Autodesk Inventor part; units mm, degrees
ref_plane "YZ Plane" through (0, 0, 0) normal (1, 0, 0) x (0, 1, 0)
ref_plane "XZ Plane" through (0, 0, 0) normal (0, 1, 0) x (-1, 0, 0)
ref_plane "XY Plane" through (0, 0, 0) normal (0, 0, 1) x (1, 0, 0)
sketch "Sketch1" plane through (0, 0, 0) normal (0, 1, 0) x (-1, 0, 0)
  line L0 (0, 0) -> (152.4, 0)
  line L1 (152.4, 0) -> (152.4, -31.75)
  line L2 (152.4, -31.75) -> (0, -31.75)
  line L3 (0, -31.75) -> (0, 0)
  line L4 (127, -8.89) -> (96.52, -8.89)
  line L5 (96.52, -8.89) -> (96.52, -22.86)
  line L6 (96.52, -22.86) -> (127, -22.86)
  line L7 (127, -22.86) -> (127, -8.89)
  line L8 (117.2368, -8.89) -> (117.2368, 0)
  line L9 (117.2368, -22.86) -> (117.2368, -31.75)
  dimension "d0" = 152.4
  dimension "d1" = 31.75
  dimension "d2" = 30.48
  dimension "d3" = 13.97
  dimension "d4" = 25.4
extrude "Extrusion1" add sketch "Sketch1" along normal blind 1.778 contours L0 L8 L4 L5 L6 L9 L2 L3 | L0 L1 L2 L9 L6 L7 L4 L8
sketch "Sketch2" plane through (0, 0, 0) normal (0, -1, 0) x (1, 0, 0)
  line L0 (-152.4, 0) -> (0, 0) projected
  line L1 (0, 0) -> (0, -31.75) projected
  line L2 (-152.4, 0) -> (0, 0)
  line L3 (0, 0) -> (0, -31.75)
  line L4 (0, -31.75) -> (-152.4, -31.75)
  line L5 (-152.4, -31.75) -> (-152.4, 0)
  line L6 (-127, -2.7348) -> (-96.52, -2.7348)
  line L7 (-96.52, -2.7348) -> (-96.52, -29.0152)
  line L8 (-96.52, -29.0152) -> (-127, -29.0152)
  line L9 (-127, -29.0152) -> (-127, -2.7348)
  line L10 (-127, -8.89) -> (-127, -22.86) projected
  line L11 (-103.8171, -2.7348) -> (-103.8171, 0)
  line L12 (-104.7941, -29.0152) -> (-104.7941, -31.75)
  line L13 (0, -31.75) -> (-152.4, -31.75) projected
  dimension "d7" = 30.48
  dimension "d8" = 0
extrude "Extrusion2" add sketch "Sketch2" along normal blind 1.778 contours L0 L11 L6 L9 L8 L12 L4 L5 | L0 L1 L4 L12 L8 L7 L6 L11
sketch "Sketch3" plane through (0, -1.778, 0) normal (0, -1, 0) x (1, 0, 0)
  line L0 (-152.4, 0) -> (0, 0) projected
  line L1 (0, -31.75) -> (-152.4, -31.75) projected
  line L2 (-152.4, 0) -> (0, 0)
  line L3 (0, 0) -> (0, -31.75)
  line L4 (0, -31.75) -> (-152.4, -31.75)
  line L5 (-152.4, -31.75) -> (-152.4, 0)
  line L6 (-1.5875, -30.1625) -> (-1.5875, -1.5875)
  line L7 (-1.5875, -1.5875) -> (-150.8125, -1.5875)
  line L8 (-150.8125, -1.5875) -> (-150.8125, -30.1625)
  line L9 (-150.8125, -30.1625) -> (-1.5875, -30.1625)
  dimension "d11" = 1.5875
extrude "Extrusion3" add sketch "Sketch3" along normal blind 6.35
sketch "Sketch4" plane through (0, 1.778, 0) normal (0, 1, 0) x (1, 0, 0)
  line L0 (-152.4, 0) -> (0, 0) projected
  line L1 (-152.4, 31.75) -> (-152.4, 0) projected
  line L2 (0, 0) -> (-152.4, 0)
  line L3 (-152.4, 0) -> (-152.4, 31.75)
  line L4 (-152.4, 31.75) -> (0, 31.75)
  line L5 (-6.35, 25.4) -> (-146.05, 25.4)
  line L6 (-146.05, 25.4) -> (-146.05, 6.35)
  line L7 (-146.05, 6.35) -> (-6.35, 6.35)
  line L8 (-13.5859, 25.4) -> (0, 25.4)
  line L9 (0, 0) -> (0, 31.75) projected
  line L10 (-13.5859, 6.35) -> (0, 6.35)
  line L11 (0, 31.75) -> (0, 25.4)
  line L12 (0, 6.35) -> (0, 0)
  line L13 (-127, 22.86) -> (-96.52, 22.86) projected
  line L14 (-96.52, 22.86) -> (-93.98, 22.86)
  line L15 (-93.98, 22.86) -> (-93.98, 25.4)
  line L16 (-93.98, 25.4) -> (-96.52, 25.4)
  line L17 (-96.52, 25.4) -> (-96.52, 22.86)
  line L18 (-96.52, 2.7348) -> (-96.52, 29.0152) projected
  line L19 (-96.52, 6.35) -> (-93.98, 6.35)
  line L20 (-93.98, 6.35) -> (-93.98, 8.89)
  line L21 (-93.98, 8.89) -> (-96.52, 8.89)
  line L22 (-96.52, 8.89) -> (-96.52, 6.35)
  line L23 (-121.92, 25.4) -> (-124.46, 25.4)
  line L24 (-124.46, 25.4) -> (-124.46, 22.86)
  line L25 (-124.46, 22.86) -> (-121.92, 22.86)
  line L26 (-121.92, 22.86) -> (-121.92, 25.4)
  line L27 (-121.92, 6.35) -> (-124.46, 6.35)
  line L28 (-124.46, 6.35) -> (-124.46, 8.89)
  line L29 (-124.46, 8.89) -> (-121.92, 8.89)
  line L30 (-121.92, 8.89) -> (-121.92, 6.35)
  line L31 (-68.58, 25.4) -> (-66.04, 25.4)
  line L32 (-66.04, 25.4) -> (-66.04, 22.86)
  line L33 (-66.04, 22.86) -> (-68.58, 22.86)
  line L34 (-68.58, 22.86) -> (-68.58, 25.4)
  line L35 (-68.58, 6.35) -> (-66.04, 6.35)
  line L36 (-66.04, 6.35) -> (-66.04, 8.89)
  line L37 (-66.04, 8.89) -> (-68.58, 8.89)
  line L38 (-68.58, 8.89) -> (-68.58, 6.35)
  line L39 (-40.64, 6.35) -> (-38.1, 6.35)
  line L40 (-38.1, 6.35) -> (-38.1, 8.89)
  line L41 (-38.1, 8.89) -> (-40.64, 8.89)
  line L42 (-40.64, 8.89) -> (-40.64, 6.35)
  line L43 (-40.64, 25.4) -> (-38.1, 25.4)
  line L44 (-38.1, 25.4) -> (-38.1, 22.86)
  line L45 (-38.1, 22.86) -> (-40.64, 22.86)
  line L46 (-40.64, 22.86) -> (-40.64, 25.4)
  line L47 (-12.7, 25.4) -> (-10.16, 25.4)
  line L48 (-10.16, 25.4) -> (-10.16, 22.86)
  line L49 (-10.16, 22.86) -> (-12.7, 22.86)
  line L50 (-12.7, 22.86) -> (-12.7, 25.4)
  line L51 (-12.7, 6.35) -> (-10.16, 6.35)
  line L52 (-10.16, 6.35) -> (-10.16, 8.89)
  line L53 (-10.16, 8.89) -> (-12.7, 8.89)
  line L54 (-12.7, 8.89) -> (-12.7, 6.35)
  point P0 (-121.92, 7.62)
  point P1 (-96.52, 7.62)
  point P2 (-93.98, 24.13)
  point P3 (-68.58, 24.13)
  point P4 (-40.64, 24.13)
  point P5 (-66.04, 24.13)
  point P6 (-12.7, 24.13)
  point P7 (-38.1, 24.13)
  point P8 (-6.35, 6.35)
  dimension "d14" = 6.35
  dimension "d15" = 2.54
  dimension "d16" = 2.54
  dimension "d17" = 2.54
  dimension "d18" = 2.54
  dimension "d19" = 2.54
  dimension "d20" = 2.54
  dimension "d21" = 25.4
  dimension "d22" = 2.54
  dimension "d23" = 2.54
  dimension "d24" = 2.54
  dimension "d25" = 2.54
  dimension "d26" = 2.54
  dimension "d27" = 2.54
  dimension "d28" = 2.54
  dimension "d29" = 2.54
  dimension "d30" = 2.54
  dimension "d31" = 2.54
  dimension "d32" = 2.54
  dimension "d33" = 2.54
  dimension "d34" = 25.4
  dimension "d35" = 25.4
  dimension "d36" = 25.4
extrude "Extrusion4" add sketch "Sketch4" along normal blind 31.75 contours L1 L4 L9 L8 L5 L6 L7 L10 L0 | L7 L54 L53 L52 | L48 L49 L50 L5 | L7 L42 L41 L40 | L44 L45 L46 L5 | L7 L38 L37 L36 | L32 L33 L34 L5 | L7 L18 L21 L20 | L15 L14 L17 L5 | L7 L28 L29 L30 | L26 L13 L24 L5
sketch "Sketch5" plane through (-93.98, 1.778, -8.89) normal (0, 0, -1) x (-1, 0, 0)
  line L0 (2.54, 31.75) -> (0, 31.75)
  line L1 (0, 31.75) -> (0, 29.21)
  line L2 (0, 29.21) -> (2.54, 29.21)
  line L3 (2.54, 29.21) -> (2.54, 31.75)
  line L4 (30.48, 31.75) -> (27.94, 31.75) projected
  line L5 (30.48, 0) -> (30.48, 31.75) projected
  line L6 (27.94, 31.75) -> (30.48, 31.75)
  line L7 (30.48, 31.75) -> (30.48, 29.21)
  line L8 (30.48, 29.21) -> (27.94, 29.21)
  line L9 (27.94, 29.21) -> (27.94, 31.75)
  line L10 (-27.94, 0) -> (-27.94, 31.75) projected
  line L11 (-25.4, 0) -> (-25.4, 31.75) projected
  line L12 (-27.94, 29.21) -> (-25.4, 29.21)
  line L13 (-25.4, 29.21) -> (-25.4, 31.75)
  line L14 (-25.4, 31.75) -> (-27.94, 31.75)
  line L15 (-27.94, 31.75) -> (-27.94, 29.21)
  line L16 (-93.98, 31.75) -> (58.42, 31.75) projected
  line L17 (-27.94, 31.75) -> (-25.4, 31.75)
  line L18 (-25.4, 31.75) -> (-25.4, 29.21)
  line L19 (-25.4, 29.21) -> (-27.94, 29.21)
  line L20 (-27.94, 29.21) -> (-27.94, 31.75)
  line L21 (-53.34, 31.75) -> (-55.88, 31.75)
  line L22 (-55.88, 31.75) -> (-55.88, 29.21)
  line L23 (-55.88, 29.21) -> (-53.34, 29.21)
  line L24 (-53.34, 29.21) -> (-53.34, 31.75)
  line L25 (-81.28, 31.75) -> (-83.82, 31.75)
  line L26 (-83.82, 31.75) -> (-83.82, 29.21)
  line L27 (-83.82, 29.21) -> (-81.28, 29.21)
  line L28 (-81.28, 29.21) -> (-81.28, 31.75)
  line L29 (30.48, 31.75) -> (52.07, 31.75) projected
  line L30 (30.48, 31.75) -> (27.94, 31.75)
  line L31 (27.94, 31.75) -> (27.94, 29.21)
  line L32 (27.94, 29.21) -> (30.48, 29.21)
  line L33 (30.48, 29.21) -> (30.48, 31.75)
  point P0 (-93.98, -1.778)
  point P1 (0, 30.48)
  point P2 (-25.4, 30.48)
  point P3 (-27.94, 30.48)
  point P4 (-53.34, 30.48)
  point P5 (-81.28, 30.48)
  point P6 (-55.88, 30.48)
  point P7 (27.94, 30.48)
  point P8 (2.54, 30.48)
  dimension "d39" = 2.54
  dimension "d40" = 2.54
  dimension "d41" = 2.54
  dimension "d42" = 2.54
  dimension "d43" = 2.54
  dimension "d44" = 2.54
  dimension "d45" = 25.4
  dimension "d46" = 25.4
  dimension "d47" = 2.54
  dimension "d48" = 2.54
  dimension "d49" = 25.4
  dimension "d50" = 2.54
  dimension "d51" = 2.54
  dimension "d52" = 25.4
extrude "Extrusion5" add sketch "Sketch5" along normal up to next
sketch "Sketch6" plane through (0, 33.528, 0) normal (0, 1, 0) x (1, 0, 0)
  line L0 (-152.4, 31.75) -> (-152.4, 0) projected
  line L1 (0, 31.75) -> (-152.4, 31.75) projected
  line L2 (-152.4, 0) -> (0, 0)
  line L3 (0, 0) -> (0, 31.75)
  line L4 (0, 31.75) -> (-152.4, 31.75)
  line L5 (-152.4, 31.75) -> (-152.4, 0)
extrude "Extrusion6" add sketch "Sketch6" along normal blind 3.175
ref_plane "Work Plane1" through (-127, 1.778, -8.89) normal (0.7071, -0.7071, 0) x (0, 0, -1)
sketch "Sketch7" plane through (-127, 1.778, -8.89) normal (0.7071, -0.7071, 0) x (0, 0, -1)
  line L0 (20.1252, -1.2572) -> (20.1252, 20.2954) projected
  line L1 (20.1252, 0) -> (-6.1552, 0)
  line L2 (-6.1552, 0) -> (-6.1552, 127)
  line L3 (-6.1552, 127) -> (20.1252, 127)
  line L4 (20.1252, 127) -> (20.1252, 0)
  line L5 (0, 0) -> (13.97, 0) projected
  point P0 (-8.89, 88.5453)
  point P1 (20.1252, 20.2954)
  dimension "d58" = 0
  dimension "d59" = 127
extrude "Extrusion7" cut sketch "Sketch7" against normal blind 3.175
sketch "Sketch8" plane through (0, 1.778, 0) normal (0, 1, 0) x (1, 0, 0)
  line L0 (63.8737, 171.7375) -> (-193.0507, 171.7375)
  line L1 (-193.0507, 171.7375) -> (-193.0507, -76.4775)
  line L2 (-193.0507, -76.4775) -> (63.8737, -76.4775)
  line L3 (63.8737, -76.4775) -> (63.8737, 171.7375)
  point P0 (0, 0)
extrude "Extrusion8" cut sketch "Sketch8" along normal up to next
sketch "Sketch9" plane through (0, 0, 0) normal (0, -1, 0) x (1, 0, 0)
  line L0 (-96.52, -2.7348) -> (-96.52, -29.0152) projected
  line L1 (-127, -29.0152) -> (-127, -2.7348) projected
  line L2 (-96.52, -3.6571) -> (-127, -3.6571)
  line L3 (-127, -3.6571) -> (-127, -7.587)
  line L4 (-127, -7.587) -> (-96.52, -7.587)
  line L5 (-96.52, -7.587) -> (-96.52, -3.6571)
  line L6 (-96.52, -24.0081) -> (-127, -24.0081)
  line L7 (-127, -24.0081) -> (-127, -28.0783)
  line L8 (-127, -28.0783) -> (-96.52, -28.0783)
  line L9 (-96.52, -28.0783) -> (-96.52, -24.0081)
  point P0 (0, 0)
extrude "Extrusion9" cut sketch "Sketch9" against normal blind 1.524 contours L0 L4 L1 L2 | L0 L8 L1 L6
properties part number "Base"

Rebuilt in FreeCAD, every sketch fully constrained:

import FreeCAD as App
import Part
import Sketcher
Q = App.Units.Quantity

doc = App.newDocument("Part")
body = doc.addObject("PartDesign::Body", "Body")

sketch1 = doc.addObject("Sketcher::SketchObject", "Sketch")
body.addObject(sketch1)
sketch1.AttachmentSupport = (doc.XZ_Plane, [""])
sketch1.MapMode = "FlatFace"
sketch1.addGeometry(Part.LineSegment(App.Vector(0, 0, 0), App.Vector(0, -32, 0)), False)
sketch1.addGeometry(Part.LineSegment(App.Vector(0, -32, 0), App.Vector(-152, -32, 0)), False)
sketch1.addGeometry(Part.LineSegment(App.Vector(-152, -32, 0), App.Vector(-152, 0, 0)), False)
sketch1.addGeometry(Part.LineSegment(App.Vector(-152, 0, 0), App.Vector(0, 0, 0)), False)
sketch1.addGeometry(Part.LineSegment(App.Vector(-97, -9, 0), App.Vector(-127, -9, 0)), False)
sketch1.addGeometry(Part.LineSegment(App.Vector(-127, -9, 0), App.Vector(-127, -23, 0)), False)
sketch1.addGeometry(Part.LineSegment(App.Vector(-127, -23, 0), App.Vector(-97, -23, 0)), False)
sketch1.addGeometry(Part.LineSegment(App.Vector(-97, -23, 0), App.Vector(-97, -9, 0)), False)
sketch1.addConstraint(Sketcher.Constraint("Coincident", 0, 2, 1, 1))
sketch1.addConstraint(Sketcher.Constraint("Coincident", 1, 2, 2, 1))
sketch1.addConstraint(Sketcher.Constraint("Coincident", 2, 2, 3, 1))
sketch1.addConstraint(Sketcher.Constraint("Coincident", 3, 2, 0, 1))
sketch1.addConstraint(Sketcher.Constraint("Coincident", 4, 2, 5, 1))
sketch1.addConstraint(Sketcher.Constraint("Coincident", 5, 2, 6, 1))
sketch1.addConstraint(Sketcher.Constraint("Coincident", 6, 2, 7, 1))
sketch1.addConstraint(Sketcher.Constraint("Coincident", 7, 2, 4, 1))
sketch1.addConstraint(Sketcher.Constraint("Vertical", 0))
sketch1.addConstraint(Sketcher.Constraint("Horizontal", 1))
sketch1.addConstraint(Sketcher.Constraint("Vertical", 2))
sketch1.addConstraint(Sketcher.Constraint("Horizontal", 3))
sketch1.addConstraint(Sketcher.Constraint("Horizontal", 4))
sketch1.addConstraint(Sketcher.Constraint("Vertical", 5))
sketch1.addConstraint(Sketcher.Constraint("Horizontal", 6))
sketch1.addConstraint(Sketcher.Constraint("Vertical", 7))
sketch1.addConstraint(Sketcher.Constraint("Coincident", 3, 2, -1, 1))
sketch1.addConstraint(Sketcher.Constraint("DistanceX", 1, 2, 1, 1, Q("6 in")))
sketch1.addConstraint(Sketcher.Constraint("DistanceX", 4, 2, 4, 1, Q("1.2 in")))
sketch1.addConstraint(Sketcher.Constraint("DistanceX", 2, 2, 4, 2, Q("1 in")))
sketch1.addConstraint(Sketcher.Constraint("DistanceY", 0, 2, 0, 1, Q("1.25 in")))
sketch1.addConstraint(Sketcher.Constraint("DistanceY", 5, 2, 5, 1, Q("0.55 in")))
sketch1.addConstraint(Sketcher.Constraint("DistanceY", 5, 2, -1, 1, Q("0.9 in")))
pad1 = doc.addObject("PartDesign::Pad", "Pad")
body.addObject(pad1)
pad1.Profile = sketch1
pad1.Length = Q("0.07 in")
pad1.Reversed = True

sketch2 = doc.addObject("Sketcher::SketchObject", "Sketch001")
body.addObject(sketch2)
sketch2.AttachmentSupport = (doc.XZ_Plane, [""])
sketch2.MapMode = "FlatFace"
sketch2.addGeometry(Part.LineSegment(App.Vector(-152, 0, 0), App.Vector(-152, -32, 0)), False)
sketch2.addGeometry(Part.LineSegment(App.Vector(-152, -32, 0), App.Vector(0, -32, 0)), False)
sketch2.addGeometry(Part.LineSegment(App.Vector(0, -32, 0), App.Vector(0, 0, 0)), False)
sketch2.addGeometry(Part.LineSegment(App.Vector(0, 0, 0), App.Vector(-152, 0, 0)), False)
sketch2.addGeometry(Part.LineSegment(App.Vector(-127, -3, 0), App.Vector(-97, -3, 0)), False)
sketch2.addGeometry(Part.LineSegment(App.Vector(-97, -3, 0), App.Vector(-97, -29, 0)), False)
sketch2.addGeometry(Part.LineSegment(App.Vector(-97, -29, 0), App.Vector(-127, -29, 0)), False)
sketch2.addGeometry(Part.LineSegment(App.Vector(-127, -29, 0), App.Vector(-127, -3, 0)), False)
sketch2.addConstraint(Sketcher.Constraint("Coincident", 0, 2, 1, 1))
sketch2.addConstraint(Sketcher.Constraint("Coincident", 1, 2, 2, 1))
sketch2.addConstraint(Sketcher.Constraint("Coincident", 2, 2, 3, 1))
sketch2.addConstraint(Sketcher.Constraint("Coincident", 3, 2, 0, 1))
sketch2.addConstraint(Sketcher.Constraint("Coincident", 4, 2, 5, 1))
sketch2.addConstraint(Sketcher.Constraint("Coincident", 5, 2, 6, 1))
sketch2.addConstraint(Sketcher.Constraint("Coincident", 6, 2, 7, 1))
sketch2.addConstraint(Sketcher.Constraint("Coincident", 7, 2, 4, 1))
sketch2.addConstraint(Sketcher.Constraint("Vertical", 0))
sketch2.addConstraint(Sketcher.Constraint("Horizontal", 1))
sketch2.addConstraint(Sketcher.Constraint("Vertical", 2))
sketch2.addConstraint(Sketcher.Constraint("Horizontal", 3))
sketch2.addConstraint(Sketcher.Constraint("Horizontal", 4))
sketch2.addConstraint(Sketcher.Constraint("Vertical", 5))
sketch2.addConstraint(Sketcher.Constraint("Horizontal", 6))
sketch2.addConstraint(Sketcher.Constraint("Vertical", 7))
sketch2.addConstraint(Sketcher.Constraint("Coincident", 2, 2, -1, 1))
sketch2.addConstraint(Sketcher.Constraint("DistanceX", 4, 1, 4, 2, Q("1.2 in")))
sketch2.addConstraint(Sketcher.Constraint("DistanceX", 1, 1, 1, 2, Q("6 in")))
sketch2.addConstraint(Sketcher.Constraint("DistanceX", 6, 2, -1, 1, Q("5 in")))
sketch2.addConstraint(Sketcher.Constraint("DistanceY", 0, 2, 0, 1, Q("1.25 in")))
sketch2.addConstraint(Sketcher.Constraint("DistanceY", 5, 2, 5, 1, Q("26.2804 mm")))
sketch2.addConstraint(Sketcher.Constraint("DistanceY", 4, 2, -1, 1, Q("2.7348 mm")))
pad2 = doc.addObject("PartDesign::Pad", "Pad001")
body.addObject(pad2)
pad2.Profile = sketch2
pad2.Length = Q("0.07 in")

sketch3 = doc.addObject("Sketcher::SketchObject", "Sketch002")
body.addObject(sketch3)
sketch3.AttachmentSupport = (doc.XZ_Plane, [""])
sketch3.MapMode = "FlatFace"
sketch3.AttachmentOffset = App.Placement(App.Vector(0, 0, 0.07 * 25.4), App.Rotation())
sketch3.addGeometry(Part.LineSegment(App.Vector(0, 0, 0), App.Vector(-152, 0, 0)), False)
sketch3.addGeometry(Part.LineSegment(App.Vector(-152, 0, 0), App.Vector(-152, -32, 0)), False)
sketch3.addGeometry(Part.LineSegment(App.Vector(-152, -32, 0), App.Vector(0, -32, 0)), False)
sketch3.addGeometry(Part.LineSegment(App.Vector(0, -32, 0), App.Vector(0, 0, 0)), False)
sketch3.addGeometry(Part.LineSegment(App.Vector(-2, -2, 0), App.Vector(-2, -30, 0)), False)
sketch3.addGeometry(Part.LineSegment(App.Vector(-2, -30, 0), App.Vector(-151, -30, 0)), False)
sketch3.addGeometry(Part.LineSegment(App.Vector(-151, -30, 0), App.Vector(-151, -2, 0)), False)
sketch3.addGeometry(Part.LineSegment(App.Vector(-151, -2, 0), App.Vector(-2, -2, 0)), False)
sketch3.addConstraint(Sketcher.Constraint("Coincident", 0, 2, 1, 1))
sketch3.addConstraint(Sketcher.Constraint("Coincident", 1, 2, 2, 1))
sketch3.addConstraint(Sketcher.Constraint("Coincident", 2, 2, 3, 1))
sketch3.addConstraint(Sketcher.Constraint("Coincident", 3, 2, 0, 1))
sketch3.addConstraint(Sketcher.Constraint("Coincident", 4, 2, 5, 1))
sketch3.addConstraint(Sketcher.Constraint("Coincident", 5, 2, 6, 1))
sketch3.addConstraint(Sketcher.Constraint("Coincident", 6, 2, 7, 1))
sketch3.addConstraint(Sketcher.Constraint("Coincident", 7, 2, 4, 1))
sketch3.addConstraint(Sketcher.Constraint("Horizontal", 0))
sketch3.addConstraint(Sketcher.Constraint("Vertical", 1))
sketch3.addConstraint(Sketcher.Constraint("Horizontal", 2))
sketch3.addConstraint(Sketcher.Constraint("Vertical", 3))
sketch3.addConstraint(Sketcher.Constraint("Vertical", 4))
sketch3.addConstraint(Sketcher.Constraint("Horizontal", 5))
sketch3.addConstraint(Sketcher.Constraint("Vertical", 6))
sketch3.addConstraint(Sketcher.Constraint("Horizontal", 7))
sketch3.addConstraint(Sketcher.Constraint("Coincident", 3, 2, -1, 1))
sketch3.addConstraint(Sketcher.Constraint("DistanceX", 0, 2, 0, 1, Q("6 in")))
sketch3.addConstraint(Sketcher.Constraint("DistanceX", 4, 2, -1, 1, Q("0.0625 in")))
sketch3.addConstraint(Sketcher.Constraint("DistanceY", 6, 2, -1, 1, Q("0.0625 in")))
sketch3.addConstraint(Sketcher.Constraint("DistanceY", 2, 2, 4, 2, Q("0.0625 in")))
sketch3.addConstraint(Sketcher.Constraint("DistanceX", 1, 2, 5, 2, Q("0.0625 in")))
sketch3.addConstraint(Sketcher.Constraint("DistanceY", 1, 2, 1, 1, Q("1.25 in")))
pad3 = doc.addObject("PartDesign::Pad", "Pad002")
body.addObject(pad3)
pad3.Profile = sketch3
pad3.Length = Q("0.25 in")

sketch4 = doc.addObject("Sketcher::SketchObject", "Sketch003")
body.addObject(sketch4)
sketch4.AttachmentSupport = (doc.XZ_Plane, [""])
sketch4.MapMode = "FlatFace"
sketch4.AttachmentOffset = App.Placement(App.Vector(0, 0, -0.07 * 25.4), App.Rotation())
sketch4.addGeometry(Part.LineSegment(App.Vector(-152.4, -31.8, 0), App.Vector(-152.4, 0, 0)), False)
sketch4.addGeometry(Part.LineSegment(App.Vector(-152.4, 0, 0), App.Vector(0, 0, 0)), False)
sketch4.addGeometry(Part.LineSegment(App.Vector(0, 0, 0), App.Vector(0, -6.3, 0)), False)
sketch4.addGeometry(Part.LineSegment(App.Vector(0, -6.3, 0), App.Vector(-10.2, -6.3, 0)), False)
sketch4.addGeometry(Part.LineSegment(App.Vector(-10.2, -6.3, 0), App.Vector(-10.2, -8.9, 0)), False)
sketch4.addGeometry(Part.LineSegment(App.Vector(-10.2, -8.9, 0), App.Vector(-12.7, -8.9, 0)), False)
sketch4.addGeometry(Part.LineSegment(App.Vector(-12.7, -8.9, 0), App.Vector(-12.7, -6.3, 0)), False)
sketch4.addGeometry(Part.LineSegment(App.Vector(-12.7, -6.3, 0), App.Vector(-38.1, -6.3, 0)), False)
sketch4.addGeometry(Part.LineSegment(App.Vector(-38.1, -6.3, 0), App.Vector(-38.1, -8.9, 0)), False)
sketch4.addGeometry(Part.LineSegment(App.Vector(-38.1, -8.9, 0), App.Vector(-40.6, -8.9, 0)), False)
sketch4.addGeometry(Part.LineSegment(App.Vector(-40.6, -8.9, 0), App.Vector(-40.6, -6.3, 0)), False)
sketch4.addGeometry(Part.LineSegment(App.Vector(-40.6, -6.3, 0), App.Vector(-66, -6.3, 0)), False)
sketch4.addGeometry(Part.LineSegment(App.Vector(-66, -6.3, 0), App.Vector(-66, -8.9, 0)), False)
sketch4.addGeometry(Part.LineSegment(App.Vector(-66, -8.9, 0), App.Vector(-68.6, -8.9, 0)), False)
sketch4.addGeometry(Part.LineSegment(App.Vector(-68.6, -8.9, 0), App.Vector(-68.6, -6.3, 0)), False)
sketch4.addGeometry(Part.LineSegment(App.Vector(-68.6, -6.3, 0), App.Vector(-94, -6.3, 0)), False)
sketch4.addGeometry(Part.LineSegment(App.Vector(-94, -6.3, 0), App.Vector(-94, -8.9, 0)), False)
sketch4.addGeometry(Part.LineSegment(App.Vector(-94, -8.9, 0), App.Vector(-96.5, -8.9, 0)), False)
sketch4.addGeometry(Part.LineSegment(App.Vector(-96.5, -8.9, 0), App.Vector(-96.5, -6.3, 0)), False)
sketch4.addGeometry(Part.LineSegment(App.Vector(-96.5, -6.3, 0), App.Vector(-121.9, -6.3, 0)), False)
sketch4.addGeometry(Part.LineSegment(App.Vector(-121.9, -6.3, 0), App.Vector(-121.9, -8.9, 0)), False)
sketch4.addGeometry(Part.LineSegment(App.Vector(-121.9, -8.9, 0), App.Vector(-124.5, -8.9, 0)), False)
sketch4.addGeometry(Part.LineSegment(App.Vector(-124.5, -8.9, 0), App.Vector(-124.5, -6.3, 0)), False)
sketch4.addGeometry(Part.LineSegment(App.Vector(-124.5, -6.3, 0), App.Vector(-146.1, -6.3, 0)), False)
sketch4.addGeometry(Part.LineSegment(App.Vector(-146.1, -6.3, 0), App.Vector(-146.1, -25.4, 0)), False)
sketch4.addGeometry(Part.LineSegment(App.Vector(-146.1, -25.4, 0), App.Vector(-124.5, -25.4, 0)), False)
sketch4.addGeometry(Part.LineSegment(App.Vector(-124.5, -25.4, 0), App.Vector(-124.5, -22.9, 0)), False)
sketch4.addGeometry(Part.LineSegment(App.Vector(-124.5, -22.9, 0), App.Vector(-121.9, -22.9, 0)), False)
sketch4.addGeometry(Part.LineSegment(App.Vector(-121.9, -22.9, 0), App.Vector(-121.9, -25.4, 0)), False)
sketch4.addGeometry(Part.LineSegment(App.Vector(-121.9, -25.4, 0), App.Vector(-96.5, -25.4, 0)), False)
sketch4.addGeometry(Part.LineSegment(App.Vector(-96.5, -25.4, 0), App.Vector(-96.5, -22.9, 0)), False)
sketch4.addGeometry(Part.LineSegment(App.Vector(-96.5, -22.9, 0), App.Vector(-94, -22.9, 0)), False)
sketch4.addGeometry(Part.LineSegment(App.Vector(-94, -22.9, 0), App.Vector(-94, -25.4, 0)), False)
sketch4.addGeometry(Part.LineSegment(App.Vector(-94, -25.4, 0), App.Vector(-68.6, -25.4, 0)), False)
sketch4.addGeometry(Part.LineSegment(App.Vector(-68.6, -25.4, 0), App.Vector(-68.6, -22.9, 0)), False)
sketch4.addGeometry(Part.LineSegment(App.Vector(-68.6, -22.9, 0), App.Vector(-66, -22.9, 0)), False)
sketch4.addGeometry(Part.LineSegment(App.Vector(-66, -22.9, 0), App.Vector(-66, -25.4, 0)), False)
sketch4.addGeometry(Part.LineSegment(App.Vector(-66, -25.4, 0), App.Vector(-40.6, -25.4, 0)), False)
sketch4.addGeometry(Part.LineSegment(App.Vector(-40.6, -25.4, 0), App.Vector(-40.6, -22.9, 0)), False)
sketch4.addGeometry(Part.LineSegment(App.Vector(-40.6, -22.9, 0), App.Vector(-38.1, -22.9, 0)), False)
sketch4.addGeometry(Part.LineSegment(App.Vector(-38.1, -22.9, 0), App.Vector(-38.1, -25.4, 0)), False)
sketch4.addGeometry(Part.LineSegment(App.Vector(-38.1, -25.4, 0), App.Vector(-12.7, -25.4, 0)), False)
sketch4.addGeometry(Part.LineSegment(App.Vector(-12.7, -25.4, 0), App.Vector(-12.7, -22.9, 0)), False)
sketch4.addGeometry(Part.LineSegment(App.Vector(-12.7, -22.9, 0), App.Vector(-10.2, -22.9, 0)), False)
sketch4.addGeometry(Part.LineSegment(App.Vector(-10.2, -22.9, 0), App.Vector(-10.2, -25.4, 0)), False)
sketch4.addGeometry(Part.LineSegment(App.Vector(-10.2, -25.4, 0), App.Vector(0, -25.4, 0)), False)
sketch4.addGeometry(Part.LineSegment(App.Vector(0, -25.4, 0), App.Vector(0, -31.8, 0)), False)
sketch4.addGeometry(Part.LineSegment(App.Vector(0, -31.8, 0), App.Vector(-152.4, -31.8, 0)), False)
sketch4.addConstraint(Sketcher.Constraint("Coincident", 0, 2, 1, 1))
sketch4.addConstraint(Sketcher.Constraint("Coincident", 1, 2, 2, 1))
sketch4.addConstraint(Sketcher.Constraint("Coincident", 2, 2, 3, 1))
sketch4.addConstraint(Sketcher.Constraint("Coincident", 3, 2, 4, 1))
sketch4.addConstraint(Sketcher.Constraint("Coincident", 4, 2, 5, 1))
sketch4.addConstraint(Sketcher.Constraint("Coincident", 5, 2, 6, 1))
sketch4.addConstraint(Sketcher.Constraint("Coincident", 6, 2, 7, 1))
sketch4.addConstraint(Sketcher.Constraint("Coincident", 7, 2, 8, 1))
sketch4.addConstraint(Sketcher.Constraint("Coincident", 8, 2, 9, 1))
sketch4.addConstraint(Sketcher.Constraint("Coincident", 9, 2, 10, 1))
sketch4.addConstraint(Sketcher.Constraint("Coincident", 10, 2, 11, 1))
sketch4.addConstraint(Sketcher.Constraint("Coincident", 11, 2, 12, 1))
sketch4.addConstraint(Sketcher.Constraint("Coincident", 12, 2, 13, 1))
sketch4.addConstraint(Sketcher.Constraint("Coincident", 13, 2, 14, 1))
sketch4.addConstraint(Sketcher.Constraint("Coincident", 14, 2, 15, 1))
sketch4.addConstraint(Sketcher.Constraint("Coincident", 15, 2, 16, 1))
sketch4.addConstraint(Sketcher.Constraint("Coincident", 16, 2, 17, 1))
sketch4.addConstraint(Sketcher.Constraint("Coincident", 17, 2, 18, 1))
sketch4.addConstraint(Sketcher.Constraint("Coincident", 18, 2, 19, 1))
sketch4.addConstraint(Sketcher.Constraint("Coincident", 19, 2, 20, 1))
sketch4.addConstraint(Sketcher.Constraint("Coincident", 20, 2, 21, 1))
sketch4.addConstraint(Sketcher.Constraint("Coincident", 21, 2, 22, 1))
sketch4.addConstraint(Sketcher.Constraint("Coincident", 22, 2, 23, 1))
sketch4.addConstraint(Sketcher.Constraint("Coincident", 23, 2, 24, 1))
sketch4.addConstraint(Sketcher.Constraint("Coincident", 24, 2, 25, 1))
sketch4.addConstraint(Sketcher.Constraint("Coincident", 25, 2, 26, 1))
sketch4.addConstraint(Sketcher.Constraint("Coincident", 26, 2, 27, 1))
sketch4.addConstraint(Sketcher.Constraint("Coincident", 27, 2, 28, 1))
sketch4.addConstraint(Sketcher.Constraint("Coincident", 28, 2, 29, 1))
sketch4.addConstraint(Sketcher.Constraint("Coincident", 29, 2, 30, 1))
sketch4.addConstraint(Sketcher.Constraint("Coincident", 30, 2, 31, 1))
sketch4.addConstraint(Sketcher.Constraint("Coincident", 31, 2, 32, 1))
sketch4.addConstraint(Sketcher.Constraint("Coincident", 32, 2, 33, 1))
sketch4.addConstraint(Sketcher.Constraint("Coincident", 33, 2, 34, 1))
sketch4.addConstraint(Sketcher.Constraint("Coincident", 34, 2, 35, 1))
sketch4.addConstraint(Sketcher.Constraint("Coincident", 35, 2, 36, 1))
sketch4.addConstraint(Sketcher.Constraint("Coincident", 36, 2, 37, 1))
sketch4.addConstraint(Sketcher.Constraint("Coincident", 37, 2, 38, 1))
sketch4.addConstraint(Sketcher.Constraint("Coincident", 38, 2, 39, 1))
sketch4.addConstraint(Sketcher.Constraint("Coincident", 39, 2, 40, 1))
sketch4.addConstraint(Sketcher.Constraint("Coincident", 40, 2, 41, 1))
sketch4.addConstraint(Sketcher.Constraint("Coincident", 41, 2, 42, 1))
sketch4.addConstraint(Sketcher.Constraint("Coincident", 42, 2, 43, 1))
sketch4.addConstraint(Sketcher.Constraint("Coincident", 43, 2, 44, 1))
sketch4.addConstraint(Sketcher.Constraint("Coincident", 44, 2, 45, 1))
sketch4.addConstraint(Sketcher.Constraint("Coincident", 45, 2, 46, 1))
sketch4.addConstraint(Sketcher.Constraint("Coincident", 46, 2, 47, 1))
sketch4.addConstraint(Sketcher.Constraint("Coincident", 47, 2, 0, 1))
sketch4.addConstraint(Sketcher.Constraint("Vertical", 0))
sketch4.addConstraint(Sketcher.Constraint("Horizontal", 1))
sketch4.addConstraint(Sketcher.Constraint("Vertical", 2))
sketch4.addConstraint(Sketcher.Constraint("Horizontal", 3))
sketch4.addConstraint(Sketcher.Constraint("Vertical", 4))
sketch4.addConstraint(Sketcher.Constraint("Horizontal", 5))
sketch4.addConstraint(Sketcher.Constraint("Vertical", 6))
sketch4.addConstraint(Sketcher.Constraint("Horizontal", 7))
sketch4.addConstraint(Sketcher.Constraint("Vertical", 8))
sketch4.addConstraint(Sketcher.Constraint("Horizontal", 9))
sketch4.addConstraint(Sketcher.Constraint("Vertical", 10))
sketch4.addConstraint(Sketcher.Constraint("Horizontal", 11))
sketch4.addConstraint(Sketcher.Constraint("Vertical", 12))
sketch4.addConstraint(Sketcher.Constraint("Horizontal", 13))
sketch4.addConstraint(Sketcher.Constraint("Vertical", 14))
sketch4.addConstraint(Sketcher.Constraint("Horizontal", 15))
sketch4.addConstraint(Sketcher.Constraint("Vertical", 16))
sketch4.addConstraint(Sketcher.Constraint("Horizontal", 17))
sketch4.addConstraint(Sketcher.Constraint("Vertical", 18))
sketch4.addConstraint(Sketcher.Constraint("Horizontal", 19))
sketch4.addConstraint(Sketcher.Constraint("Vertical", 20))
sketch4.addConstraint(Sketcher.Constraint("Horizontal", 21))
sketch4.addConstraint(Sketcher.Constraint("Vertical", 22))
sketch4.addConstraint(Sketcher.Constraint("Horizontal", 23))
sketch4.addConstraint(Sketcher.Constraint("Vertical", 24))
sketch4.addConstraint(Sketcher.Constraint("Horizontal", 25))
sketch4.addConstraint(Sketcher.Constraint("Vertical", 26))
sketch4.addConstraint(Sketcher.Constraint("Horizontal", 27))
sketch4.addConstraint(Sketcher.Constraint("Vertical", 28))
sketch4.addConstraint(Sketcher.Constraint("Horizontal", 29))
sketch4.addConstraint(Sketcher.Constraint("Vertical", 30))
sketch4.addConstraint(Sketcher.Constraint("Horizontal", 31))
sketch4.addConstraint(Sketcher.Constraint("Vertical", 32))
sketch4.addConstraint(Sketcher.Constraint("Horizontal", 33))
sketch4.addConstraint(Sketcher.Constraint("Vertical", 34))
sketch4.addConstraint(Sketcher.Constraint("Horizontal", 35))
sketch4.addConstraint(Sketcher.Constraint("Vertical", 36))
sketch4.addConstraint(Sketcher.Constraint("Horizontal", 37))
sketch4.addConstraint(Sketcher.Constraint("Vertical", 38))
sketch4.addConstraint(Sketcher.Constraint("Horizontal", 39))
sketch4.addConstraint(Sketcher.Constraint("Vertical", 40))
sketch4.addConstraint(Sketcher.Constraint("Horizontal", 41))
sketch4.addConstraint(Sketcher.Constraint("Vertical", 42))
sketch4.addConstraint(Sketcher.Constraint("Horizontal", 43))
sketch4.addConstraint(Sketcher.Constraint("Vertical", 44))
sketch4.addConstraint(Sketcher.Constraint("Horizontal", 45))
sketch4.addConstraint(Sketcher.Constraint("Vertical", 46))
sketch4.addConstraint(Sketcher.Constraint("Horizontal", 47))
sketch4.addConstraint(Sketcher.Constraint("Coincident", 1, 2, -1, 1))
sketch4.addConstraint(Sketcher.Constraint("PointOnObject", 45, 2, -2))
sketch4.addConstraint(Sketcher.Constraint("Horizontal", 3, 2, 6, 2))
sketch4.addConstraint(Sketcher.Constraint("Horizontal", 5, 2, 8, 2))
sketch4.addConstraint(Sketcher.Constraint("Horizontal", 7, 2, 10, 2))
sketch4.addConstraint(Sketcher.Constraint("Horizontal", 9, 2, 12, 2))
sketch4.addConstraint(Sketcher.Constraint("Horizontal", 11, 2, 14, 2))
sketch4.addConstraint(Sketcher.Constraint("Horizontal", 13, 2, 16, 2))
sketch4.addConstraint(Sketcher.Constraint("Horizontal", 15, 2, 18, 2))
sketch4.addConstraint(Sketcher.Constraint("Horizontal", 17, 2, 20, 2))
sketch4.addConstraint(Sketcher.Constraint("Horizontal", 19, 2, 22, 2))
sketch4.addConstraint(Sketcher.Constraint("Horizontal", 25, 2, 28, 2))
sketch4.addConstraint(Sketcher.Constraint("Horizontal", 27, 2, 30, 2))
sketch4.addConstraint(Sketcher.Constraint("Horizontal", 29, 2, 32, 2))
sketch4.addConstraint(Sketcher.Constraint("Horizontal", 31, 2, 34, 2))
sketch4.addConstraint(Sketcher.Constraint("Horizontal", 33, 2, 36, 2))
sketch4.addConstraint(Sketcher.Constraint("Horizontal", 35, 2, 38, 2))
sketch4.addConstraint(Sketcher.Constraint("Horizontal", 37, 2, 40, 2))
sketch4.addConstraint(Sketcher.Constraint("Horizontal", 39, 2, 42, 2))
sketch4.addConstraint(Sketcher.Constraint("Horizontal", 41, 2, 44, 2))
sketch4.addConstraint(Sketcher.Constraint("Vertical", 22, 2, 25, 2))
sketch4.addConstraint(Sketcher.Constraint("Vertical", 20, 2, 27, 2))
sketch4.addConstraint(Sketcher.Constraint("Vertical", 18, 2, 29, 2))
sketch4.addConstraint(Sketcher.Constraint("Vertical", 16, 2, 31, 2))
sketch4.addConstraint(Sketcher.Constraint("Vertical", 14, 2, 33, 2))
sketch4.addConstraint(Sketcher.Constraint("Vertical", 12, 2, 35, 2))
sketch4.addConstraint(Sketcher.Constraint("Vertical", 10, 2, 37, 2))
sketch4.addConstraint(Sketcher.Constraint("Vertical", 8, 2, 39, 2))
sketch4.addConstraint(Sketcher.Constraint("Vertical", 6, 2, 41, 2))
sketch4.addConstraint(Sketcher.Constraint("Vertical", 4, 2, 43, 2))
sketch4.addConstraint(Sketcher.Constraint("Equal", 5, 9))
sketch4.addConstraint(Sketcher.Constraint("Equal", 7, 11))
sketch4.addConstraint(Sketcher.Constraint("Equal", 9, 13))
sketch4.addConstraint(Sketcher.Constraint("Equal", 11, 15))
sketch4.addConstraint(Sketcher.Constraint("Equal", 13, 17))
sketch4.addConstraint(Sketcher.Constraint("Equal", 15, 19))
sketch4.addConstraint(Sketcher.Constraint("Equal", 17, 21))
sketch4.addConstraint(Sketcher.Constraint("Equal", 43, 4))
sketch4.addConstraint(Sketcher.Constraint("Equal", 22, 26))
sketch4.addConstraint(Sketcher.Constraint("Equal", 2, 46))
sketch4.addConstraint(Sketcher.Constraint("DistanceX", 7, 2, 7, 1, Q("1 in")))
sketch4.addConstraint(Sketcher.Constraint("DistanceX", 5, 2, 5, 1, Q("0.1 in")))
sketch4.addConstraint(Sketcher.Constraint("DistanceY", 24, 2, -1, 1, Q("1 in")))
sketch4.addConstraint(Sketcher.Constraint("DistanceY", 2, 2, 2, 1, Q("0.25 in")))
sketch4.addConstraint(Sketcher.Constraint("DistanceX", 1, 1, 1, 2, Q("6 in")))
sketch4.addConstraint(Sketcher.Constraint("DistanceX", 0, 2, 23, 2, Q("0.25 in")))
sketch4.addConstraint(Sketcher.Constraint("DistanceX", 3, 2, 3, 1, Q("0.4 in")))
pad4 = doc.addObject("PartDesign::Pad", "Pad003")
body.addObject(pad4)
pad4.Profile = sketch4
pad4.Length = Q("1.25 in")
pad4.Reversed = True

sketch5 = doc.addObject("Sketcher::SketchObject", "Sketch004")
body.addObject(sketch5)
sketch5.AttachmentSupport = (doc.XY_Plane, [""])
sketch5.MapMode = "FlatFace"
sketch5.AttachmentOffset = App.Placement(App.Vector(0, 0, -0.35 * 25.4), App.Rotation())
sketch5.addGeometry(Part.LineSegment(App.Vector(-96.5, 31, 0), App.Vector(-96.5, 33.5, 0)), False)
sketch5.addGeometry(Part.LineSegment(App.Vector(-96.5, 33.5, 0), App.Vector(-94, 33.5, 0)), False)
sketch5.addGeometry(Part.LineSegment(App.Vector(-94, 33.5, 0), App.Vector(-94, 31, 0)), False)
sketch5.addGeometry(Part.LineSegment(App.Vector(-94, 31, 0), App.Vector(-96.5, 31, 0)), False)
sketch5.addGeometry(Part.LineSegment(App.Vector(-12.7, 31, 0), App.Vector(-12.7, 33.5, 0)), False)
sketch5.addGeometry(Part.LineSegment(App.Vector(-12.7, 33.5, 0), App.Vector(-10.2, 33.5, 0)), False)
sketch5.addGeometry(Part.LineSegment(App.Vector(-10.2, 33.5, 0), App.Vector(-10.2, 31, 0)), False)
sketch5.addGeometry(Part.LineSegment(App.Vector(-10.2, 31, 0), App.Vector(-12.7, 31, 0)), False)
sketch5.addGeometry(Part.LineSegment(App.Vector(-40.6, 31, 0), App.Vector(-40.6, 33.5, 0)), False)
sketch5.addGeometry(Part.LineSegment(App.Vector(-40.6, 33.5, 0), App.Vector(-38.1, 33.5, 0)), False)
sketch5.addGeometry(Part.LineSegment(App.Vector(-38.1, 33.5, 0), App.Vector(-38.1, 31, 0)), False)
sketch5.addGeometry(Part.LineSegment(App.Vector(-38.1, 31, 0), App.Vector(-40.6, 31, 0)), False)
sketch5.addGeometry(Part.LineSegment(App.Vector(-68.6, 31, 0), App.Vector(-68.6, 33.5, 0)), False)
sketch5.addGeometry(Part.LineSegment(App.Vector(-68.6, 33.5, 0), App.Vector(-66, 33.5, 0)), False)
sketch5.addGeometry(Part.LineSegment(App.Vector(-66, 33.5, 0), App.Vector(-66, 31, 0)), False)
sketch5.addGeometry(Part.LineSegment(App.Vector(-66, 31, 0), App.Vector(-68.6, 31, 0)), False)
sketch5.addGeometry(Part.LineSegment(App.Vector(-124.5, 33.5, 0), App.Vector(-121.9, 33.5, 0)), False)
sketch5.addGeometry(Part.LineSegment(App.Vector(-121.9, 33.5, 0), App.Vector(-121.9, 31, 0)), False)
sketch5.addGeometry(Part.LineSegment(App.Vector(-121.9, 31, 0), App.Vector(-124.5, 31, 0)), False)
sketch5.addGeometry(Part.LineSegment(App.Vector(-124.5, 31, 0), App.Vector(-124.5, 33.5, 0)), False)
sketch5.addConstraint(Sketcher.Constraint("Coincident", 0, 2, 1, 1))
sketch5.addConstraint(Sketcher.Constraint("Coincident", 1, 2, 2, 1))
sketch5.addConstraint(Sketcher.Constraint("Coincident", 2, 2, 3, 1))
sketch5.addConstraint(Sketcher.Constraint("Coincident", 3, 2, 0, 1))
sketch5.addConstraint(Sketcher.Constraint("Coincident", 4, 2, 5, 1))
sketch5.addConstraint(Sketcher.Constraint("Coincident", 5, 2, 6, 1))
sketch5.addConstraint(Sketcher.Constraint("Coincident", 6, 2, 7, 1))
sketch5.addConstraint(Sketcher.Constraint("Coincident", 7, 2, 4, 1))
sketch5.addConstraint(Sketcher.Constraint("Coincident", 8, 2, 9, 1))
sketch5.addConstraint(Sketcher.Constraint("Coincident", 9, 2, 10, 1))
sketch5.addConstraint(Sketcher.Constraint("Coincident", 10, 2, 11, 1))
sketch5.addConstraint(Sketcher.Constraint("Coincident", 11, 2, 8, 1))
sketch5.addConstraint(Sketcher.Constraint("Coincident", 12, 2, 13, 1))
sketch5.addConstraint(Sketcher.Constraint("Coincident", 13, 2, 14, 1))
sketch5.addConstraint(Sketcher.Constraint("Coincident", 14, 2, 15, 1))
sketch5.addConstraint(Sketcher.Constraint("Coincident", 15, 2, 12, 1))
sketch5.addConstraint(Sketcher.Constraint("Coincident", 16, 2, 17, 1))
sketch5.addConstraint(Sketcher.Constraint("Coincident", 17, 2, 18, 1))
sketch5.addConstraint(Sketcher.Constraint("Coincident", 18, 2, 19, 1))
sketch5.addConstraint(Sketcher.Constraint("Coincident", 19, 2, 16, 1))
sketch5.addConstraint(Sketcher.Constraint("Vertical", 0))
sketch5.addConstraint(Sketcher.Constraint("Horizontal", 1))
sketch5.addConstraint(Sketcher.Constraint("Vertical", 2))
sketch5.addConstraint(Sketcher.Constraint("Horizontal", 3))
sketch5.addConstraint(Sketcher.Constraint("Vertical", 4))
sketch5.addConstraint(Sketcher.Constraint("Horizontal", 5))
sketch5.addConstraint(Sketcher.Constraint("Vertical", 6))
sketch5.addConstraint(Sketcher.Constraint("Horizontal", 7))
sketch5.addConstraint(Sketcher.Constraint("Vertical", 8))
sketch5.addConstraint(Sketcher.Constraint("Horizontal", 9))
sketch5.addConstraint(Sketcher.Constraint("Vertical", 10))
sketch5.addConstraint(Sketcher.Constraint("Horizontal", 11))
sketch5.addConstraint(Sketcher.Constraint("Vertical", 12))
sketch5.addConstraint(Sketcher.Constraint("Horizontal", 13))
sketch5.addConstraint(Sketcher.Constraint("Vertical", 14))
sketch5.addConstraint(Sketcher.Constraint("Horizontal", 15))
sketch5.addConstraint(Sketcher.Constraint("Horizontal", 16))
sketch5.addConstraint(Sketcher.Constraint("Vertical", 17))
sketch5.addConstraint(Sketcher.Constraint("Horizontal", 18))
sketch5.addConstraint(Sketcher.Constraint("Vertical", 19))
sketch5.addConstraint(Sketcher.Constraint("Horizontal", 1, 2, 4, 2))
sketch5.addConstraint(Sketcher.Constraint("Horizontal", 3, 2, 6, 2))
sketch5.addConstraint(Sketcher.Constraint("Horizontal", 5, 2, 8, 2))
sketch5.addConstraint(Sketcher.Constraint("Horizontal", 7, 2, 10, 2))
sketch5.addConstraint(Sketcher.Constraint("Horizontal", 9, 2, 12, 2))
sketch5.addConstraint(Sketcher.Constraint("Horizontal", 11, 2, 14, 2))
sketch5.addConstraint(Sketcher.Constraint("Horizontal", 13, 2, 16, 2))
sketch5.addConstraint(Sketcher.Constraint("Horizontal", 15, 2, 17, 2))
sketch5.addConstraint(Sketcher.Constraint("Equal", 3, 5))
sketch5.addConstraint(Sketcher.Constraint("Equal", 7, 9))
sketch5.addConstraint(Sketcher.Constraint("Equal", 11, 13))
sketch5.addConstraint(Sketcher.Constraint("Equal", 15, 16))
sketch5.addConstraint(Sketcher.Constraint("Equal", 18, 0))
sketch5.addConstraint(Sketcher.Constraint("DistanceX", 1, 1, 1, 2, Q("0.1 in")))
sketch5.addConstraint(Sketcher.Constraint("DistanceX", 9, 2, 4, 2, Q("1 in")))
sketch5.addConstraint(Sketcher.Constraint("DistanceX", 1, 2, 12, 2, Q("1 in")))
sketch5.addConstraint(Sketcher.Constraint("DistanceX", 13, 2, 8, 2, Q("1 in")))
sketch5.addConstraint(Sketcher.Constraint("DistanceX", 16, 2, 0, 2, Q("1 in")))
sketch5.addConstraint(Sketcher.Constraint("DistanceX", 0, 2, -1, 1, Q("3.8 in")))
sketch5.addConstraint(Sketcher.Constraint("DistanceY", -1, 1, 0, 2, Q("1.32 in")))
pad5 = doc.addObject("PartDesign::Pad", "Pad004")
body.addObject(pad5)
pad5.Profile = sketch5
pad5.Type = "UpToFirst"
pad5.Reversed = True

sketch6 = doc.addObject("Sketcher::SketchObject", "Sketch005")
body.addObject(sketch6)
sketch6.AttachmentSupport = (doc.XZ_Plane, [""])
sketch6.MapMode = "FlatFace"
sketch6.AttachmentOffset = App.Placement(App.Vector(0, 0, -1.32 * 25.4), App.Rotation())
sketch6.addGeometry(Part.LineSegment(App.Vector(0, -32, 0), App.Vector(-152, -32, 0)), False)
sketch6.addGeometry(Part.LineSegment(App.Vector(-152, -32, 0), App.Vector(-152, 0, 0)), False)
sketch6.addGeometry(Part.LineSegment(App.Vector(-152, 0, 0), App.Vector(0, 0, 0)), False)
sketch6.addGeometry(Part.LineSegment(App.Vector(0, 0, 0), App.Vector(0, -32, 0)), False)
sketch6.addConstraint(Sketcher.Constraint("Coincident", 0, 2, 1, 1))
sketch6.addConstraint(Sketcher.Constraint("Coincident", 1, 2, 2, 1))
sketch6.addConstraint(Sketcher.Constraint("Coincident", 2, 2, 3, 1))
sketch6.addConstraint(Sketcher.Constraint("Coincident", 3, 2, 0, 1))
sketch6.addConstraint(Sketcher.Constraint("Horizontal", 0))
sketch6.addConstraint(Sketcher.Constraint("Vertical", 1))
sketch6.addConstraint(Sketcher.Constraint("Horizontal", 2))
sketch6.addConstraint(Sketcher.Constraint("Vertical", 3))
sketch6.addConstraint(Sketcher.Constraint("Coincident", 2, 2, -1, 1))
sketch6.addConstraint(Sketcher.Constraint("DistanceX", 0, 2, 0, 1, Q("6 in")))
sketch6.addConstraint(Sketcher.Constraint("DistanceY", 1, 1, 1, 2, Q("1.25 in")))
pad6 = doc.addObject("PartDesign::Pad", "Pad005")
body.addObject(pad6)
pad6.Profile = sketch6
pad6.Length = Q("0.125 in")
pad6.Reversed = True

sketch7 = doc.addObject("Sketcher::SketchObject", "Sketch006")
body.addObject(sketch7)
sketch7.Placement = App.Placement(App.Vector(-127, 1.778, -8.89), App.Rotation(App.Vector(0, 0, -1), App.Vector(0.707106781, 0.707106781, 0), App.Vector(0.707106781, -0.707106781, 0), "ZXY"))
sketch7.addGeometry(Part.LineSegment(App.Vector(-6, 0, 0), App.Vector(20, 0, 0)), False)
sketch7.addGeometry(Part.LineSegment(App.Vector(20, 0, 0), App.Vector(20, 127, 0)), False)
sketch7.addGeometry(Part.LineSegment(App.Vector(20, 127, 0), App.Vector(-6, 127, 0)), False)
sketch7.addGeometry(Part.LineSegment(App.Vector(-6, 127, 0), App.Vector(-6, 0, 0)), False)
sketch7.addConstraint(Sketcher.Constraint("Coincident", 0, 2, 1, 1))
sketch7.addConstraint(Sketcher.Constraint("Coincident", 1, 2, 2, 1))
sketch7.addConstraint(Sketcher.Constraint("Coincident", 2, 2, 3, 1))
sketch7.addConstraint(Sketcher.Constraint("Coincident", 3, 2, 0, 1))
sketch7.addConstraint(Sketcher.Constraint("Horizontal", 0))
sketch7.addConstraint(Sketcher.Constraint("Vertical", 1))
sketch7.addConstraint(Sketcher.Constraint("Horizontal", 2))
sketch7.addConstraint(Sketcher.Constraint("Vertical", 3))
sketch7.addConstraint(Sketcher.Constraint("PointOnObject", 0, 2, -1))
sketch7.addConstraint(Sketcher.Constraint("DistanceY", 1, 1, 1, 2, Q("5 in")))
sketch7.addConstraint(Sketcher.Constraint("DistanceX", 0, 1, 0, 2, Q("26.2804 mm")))
sketch7.addConstraint(Sketcher.Constraint("DistanceX", -1, 1, 0, 2, Q("20.1252 mm")))
pocket1 = doc.addObject("PartDesign::Pocket", "Pocket")
body.addObject(pocket1)
pocket1.Profile = sketch7
pocket1.Length = Q("0.125 in")

sketch8 = doc.addObject("Sketcher::SketchObject", "Sketch007")
body.addObject(sketch8)
sketch8.AttachmentSupport = (doc.XZ_Plane, [""])
sketch8.MapMode = "FlatFace"
sketch8.AttachmentOffset = App.Placement(App.Vector(0, 0, -0.07 * 25.4), App.Rotation())
sketch8.addGeometry(Part.LineSegment(App.Vector(64, 76, 0), App.Vector(64, -172, 0)), False)
sketch8.addGeometry(Part.LineSegment(App.Vector(64, -172, 0), App.Vector(-193, -172, 0)), False)
sketch8.addGeometry(Part.LineSegment(App.Vector(-193, -172, 0), App.Vector(-193, 76, 0)), False)
sketch8.addGeometry(Part.LineSegment(App.Vector(-193, 76, 0), App.Vector(64, 76, 0)), False)
sketch8.addConstraint(Sketcher.Constraint("Coincident", 0, 2, 1, 1))
sketch8.addConstraint(Sketcher.Constraint("Coincident", 1, 2, 2, 1))
sketch8.addConstraint(Sketcher.Constraint("Coincident", 2, 2, 3, 1))
sketch8.addConstraint(Sketcher.Constraint("Coincident", 3, 2, 0, 1))
sketch8.addConstraint(Sketcher.Constraint("Vertical", 0))
sketch8.addConstraint(Sketcher.Constraint("Horizontal", 1))
sketch8.addConstraint(Sketcher.Constraint("Vertical", 2))
sketch8.addConstraint(Sketcher.Constraint("Horizontal", 3))
sketch8.addConstraint(Sketcher.Constraint("DistanceX", 1, 2, 1, 1, Q("256.9244 mm")))
sketch8.addConstraint(Sketcher.Constraint("DistanceY", 0, 2, 0, 1, Q("248.215 mm")))
sketch8.addConstraint(Sketcher.Constraint("DistanceX", -1, 1, 0, 2, Q("63.8737 mm")))
sketch8.addConstraint(Sketcher.Constraint("DistanceY", 0, 2, -1, 1, Q("171.7375 mm")))
pocket2 = doc.addObject("PartDesign::Pocket", "Pocket001")
body.addObject(pocket2)
pocket2.Profile = sketch8
pocket2.Length = Q("1.375 in")

sketch9 = doc.addObject("Sketcher::SketchObject", "Sketch008")
body.addObject(sketch9)
sketch9.AttachmentSupport = (doc.XZ_Plane, [""])
sketch9.MapMode = "FlatFace"
sketch9.addGeometry(Part.LineSegment(App.Vector(-96.5, -7.6, 0), App.Vector(-96.5, -3.7, 0)), False)
sketch9.addGeometry(Part.LineSegment(App.Vector(-96.5, -3.7, 0), App.Vector(-127, -3.7, 0)), False)
sketch9.addGeometry(Part.LineSegment(App.Vector(-127, -3.7, 0), App.Vector(-127, -7.6, 0)), False)
sketch9.addGeometry(Part.LineSegment(App.Vector(-127, -7.6, 0), App.Vector(-96.5, -7.6, 0)), False)
sketch9.addGeometry(Part.LineSegment(App.Vector(-96.5, -28.1, 0), App.Vector(-96.5, -24, 0)), False)
sketch9.addGeometry(Part.LineSegment(App.Vector(-96.5, -24, 0), App.Vector(-127, -24, 0)), False)
sketch9.addGeometry(Part.LineSegment(App.Vector(-127, -24, 0), App.Vector(-127, -28.1, 0)), False)
sketch9.addGeometry(Part.LineSegment(App.Vector(-127, -28.1, 0), App.Vector(-96.5, -28.1, 0)), False)
sketch9.addConstraint(Sketcher.Constraint("Coincident", 0, 2, 1, 1))
sketch9.addConstraint(Sketcher.Constraint("Coincident", 1, 2, 2, 1))
sketch9.addConstraint(Sketcher.Constraint("Coincident", 2, 2, 3, 1))
sketch9.addConstraint(Sketcher.Constraint("Coincident", 3, 2, 0, 1))
sketch9.addConstraint(Sketcher.Constraint("Coincident", 4, 2, 5, 1))
sketch9.addConstraint(Sketcher.Constraint("Coincident", 5, 2, 6, 1))
sketch9.addConstraint(Sketcher.Constraint("Coincident", 6, 2, 7, 1))
sketch9.addConstraint(Sketcher.Constraint("Coincident", 7, 2, 4, 1))
sketch9.addConstraint(Sketcher.Constraint("Vertical", 0))
sketch9.addConstraint(Sketcher.Constraint("Horizontal", 1))
sketch9.addConstraint(Sketcher.Constraint("Vertical", 2))
sketch9.addConstraint(Sketcher.Constraint("Horizontal", 3))
sketch9.addConstraint(Sketcher.Constraint("Vertical", 4))
sketch9.addConstraint(Sketcher.Constraint("Horizontal", 5))
sketch9.addConstraint(Sketcher.Constraint("Vertical", 6))
sketch9.addConstraint(Sketcher.Constraint("Horizontal", 7))
sketch9.addConstraint(Sketcher.Constraint("Vertical", 3, 2, 4, 2))
sketch9.addConstraint(Sketcher.Constraint("Vertical", 2, 2, 5, 2))
sketch9.addConstraint(Sketcher.Constraint("DistanceX", 1, 2, 1, 1, Q("1.2 in")))
sketch9.addConstraint(Sketcher.Constraint("DistanceX", 1, 2, -1, 1, Q("5 in")))
sketch9.addConstraint(Sketcher.Constraint("DistanceY", 0, 1, 0, 2, Q("3.93 mm")))
sketch9.addConstraint(Sketcher.Constraint("DistanceY", 4, 1, 4, 2, Q("4.0702 mm")))
sketch9.addConstraint(Sketcher.Constraint("DistanceY", 2, 2, -1, 1, Q("0.2987 in")))
sketch9.addConstraint(Sketcher.Constraint("DistanceY", 4, 2, -1, 1, Q("0.9452 in")))
pocket3 = doc.addObject("PartDesign::Pocket", "Pocket002")
body.addObject(pocket3)
pocket3.Profile = sketch9
pocket3.Length = Q("0.06 in")

doc.recompute()
